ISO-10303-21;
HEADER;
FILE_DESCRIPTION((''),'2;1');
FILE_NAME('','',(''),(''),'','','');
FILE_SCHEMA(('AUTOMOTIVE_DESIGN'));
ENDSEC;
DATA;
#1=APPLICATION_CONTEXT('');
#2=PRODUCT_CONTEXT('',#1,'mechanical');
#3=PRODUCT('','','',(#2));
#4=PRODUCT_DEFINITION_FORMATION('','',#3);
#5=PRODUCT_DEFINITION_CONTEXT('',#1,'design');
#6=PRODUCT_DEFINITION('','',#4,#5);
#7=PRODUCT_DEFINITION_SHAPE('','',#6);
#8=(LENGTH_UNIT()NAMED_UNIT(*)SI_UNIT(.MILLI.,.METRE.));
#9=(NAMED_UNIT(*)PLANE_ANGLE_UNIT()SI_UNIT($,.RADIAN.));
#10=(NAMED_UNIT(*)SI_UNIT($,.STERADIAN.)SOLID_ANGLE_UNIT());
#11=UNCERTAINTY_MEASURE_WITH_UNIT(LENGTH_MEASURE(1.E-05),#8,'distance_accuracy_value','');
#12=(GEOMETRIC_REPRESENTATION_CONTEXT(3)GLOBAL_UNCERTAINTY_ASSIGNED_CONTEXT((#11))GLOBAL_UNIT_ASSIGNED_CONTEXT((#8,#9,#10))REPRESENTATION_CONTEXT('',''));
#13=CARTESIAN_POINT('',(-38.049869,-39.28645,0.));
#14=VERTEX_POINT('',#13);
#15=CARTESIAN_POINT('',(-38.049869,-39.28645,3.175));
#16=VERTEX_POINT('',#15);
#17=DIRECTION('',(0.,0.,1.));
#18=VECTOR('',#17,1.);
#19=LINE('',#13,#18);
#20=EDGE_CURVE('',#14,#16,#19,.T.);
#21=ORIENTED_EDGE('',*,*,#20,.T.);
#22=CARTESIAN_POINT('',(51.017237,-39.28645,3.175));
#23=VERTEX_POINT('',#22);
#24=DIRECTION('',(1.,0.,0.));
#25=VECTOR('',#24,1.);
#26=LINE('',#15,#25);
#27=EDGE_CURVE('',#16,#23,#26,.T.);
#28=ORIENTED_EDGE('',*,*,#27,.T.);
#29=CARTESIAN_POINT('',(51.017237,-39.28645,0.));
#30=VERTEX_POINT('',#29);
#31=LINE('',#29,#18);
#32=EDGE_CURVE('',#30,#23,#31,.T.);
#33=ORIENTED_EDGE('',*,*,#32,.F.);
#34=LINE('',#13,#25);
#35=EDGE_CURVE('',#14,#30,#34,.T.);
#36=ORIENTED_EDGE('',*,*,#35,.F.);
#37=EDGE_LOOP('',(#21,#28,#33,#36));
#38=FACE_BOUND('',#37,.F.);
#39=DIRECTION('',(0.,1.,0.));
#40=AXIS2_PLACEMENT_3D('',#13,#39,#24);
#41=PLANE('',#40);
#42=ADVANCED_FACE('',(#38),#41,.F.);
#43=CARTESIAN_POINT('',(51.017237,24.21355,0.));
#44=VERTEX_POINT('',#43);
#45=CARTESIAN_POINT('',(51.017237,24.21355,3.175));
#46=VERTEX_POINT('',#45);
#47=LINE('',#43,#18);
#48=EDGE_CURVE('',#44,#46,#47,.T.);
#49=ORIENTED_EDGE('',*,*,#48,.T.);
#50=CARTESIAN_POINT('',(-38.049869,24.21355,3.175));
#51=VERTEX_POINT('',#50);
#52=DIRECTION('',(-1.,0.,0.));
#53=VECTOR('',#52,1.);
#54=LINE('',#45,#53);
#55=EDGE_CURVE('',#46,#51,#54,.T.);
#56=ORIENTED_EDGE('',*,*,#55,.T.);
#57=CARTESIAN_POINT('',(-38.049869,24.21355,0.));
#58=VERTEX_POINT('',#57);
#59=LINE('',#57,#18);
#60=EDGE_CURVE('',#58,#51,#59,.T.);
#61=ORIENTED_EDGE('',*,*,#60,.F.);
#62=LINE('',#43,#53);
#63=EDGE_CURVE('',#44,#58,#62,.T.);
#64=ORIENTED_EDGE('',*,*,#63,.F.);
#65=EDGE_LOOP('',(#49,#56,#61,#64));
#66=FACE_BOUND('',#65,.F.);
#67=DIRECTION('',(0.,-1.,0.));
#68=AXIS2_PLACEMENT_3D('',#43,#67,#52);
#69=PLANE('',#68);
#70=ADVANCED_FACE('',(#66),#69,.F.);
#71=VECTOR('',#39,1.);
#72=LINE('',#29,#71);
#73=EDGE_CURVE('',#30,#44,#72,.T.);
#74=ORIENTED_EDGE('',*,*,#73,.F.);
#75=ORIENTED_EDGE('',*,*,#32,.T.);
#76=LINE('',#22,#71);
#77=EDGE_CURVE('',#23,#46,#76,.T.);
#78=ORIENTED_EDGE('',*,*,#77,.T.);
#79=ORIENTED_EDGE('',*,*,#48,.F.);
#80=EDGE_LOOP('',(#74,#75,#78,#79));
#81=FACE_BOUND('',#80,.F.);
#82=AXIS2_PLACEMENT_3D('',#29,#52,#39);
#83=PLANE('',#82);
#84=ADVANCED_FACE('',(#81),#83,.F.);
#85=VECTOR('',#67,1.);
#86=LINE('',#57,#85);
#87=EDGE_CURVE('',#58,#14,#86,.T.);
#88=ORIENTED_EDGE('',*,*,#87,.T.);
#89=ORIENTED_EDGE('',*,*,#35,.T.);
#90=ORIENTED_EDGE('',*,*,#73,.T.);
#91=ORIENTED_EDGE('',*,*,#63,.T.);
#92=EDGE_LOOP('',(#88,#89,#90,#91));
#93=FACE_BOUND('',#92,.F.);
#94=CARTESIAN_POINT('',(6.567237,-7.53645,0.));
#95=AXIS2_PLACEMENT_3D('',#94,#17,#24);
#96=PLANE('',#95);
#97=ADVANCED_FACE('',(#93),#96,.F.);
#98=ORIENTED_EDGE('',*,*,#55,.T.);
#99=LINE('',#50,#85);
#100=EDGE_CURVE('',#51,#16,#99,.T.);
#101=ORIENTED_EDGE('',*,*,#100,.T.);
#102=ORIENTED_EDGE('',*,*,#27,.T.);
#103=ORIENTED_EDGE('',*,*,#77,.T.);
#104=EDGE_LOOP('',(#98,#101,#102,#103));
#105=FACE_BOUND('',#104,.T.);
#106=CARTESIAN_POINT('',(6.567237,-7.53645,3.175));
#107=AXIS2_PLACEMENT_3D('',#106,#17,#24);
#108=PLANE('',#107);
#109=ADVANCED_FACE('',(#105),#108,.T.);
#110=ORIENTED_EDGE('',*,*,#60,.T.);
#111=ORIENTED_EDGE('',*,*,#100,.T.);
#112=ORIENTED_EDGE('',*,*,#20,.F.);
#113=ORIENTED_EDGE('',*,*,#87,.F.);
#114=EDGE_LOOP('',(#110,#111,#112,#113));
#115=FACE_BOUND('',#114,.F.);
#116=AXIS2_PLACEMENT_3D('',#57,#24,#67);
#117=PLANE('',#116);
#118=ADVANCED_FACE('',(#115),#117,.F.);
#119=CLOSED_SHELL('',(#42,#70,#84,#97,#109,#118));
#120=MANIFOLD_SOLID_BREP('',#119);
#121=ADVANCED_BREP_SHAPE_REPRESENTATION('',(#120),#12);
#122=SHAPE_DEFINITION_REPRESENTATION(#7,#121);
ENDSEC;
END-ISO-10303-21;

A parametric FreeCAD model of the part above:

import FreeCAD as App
import Part
import Sketcher
from FreeCAD import Vector
Q = App.Units.Quantity

doc = App.newDocument("Part")
body = doc.addObject("PartDesign::Body", "Body")

# Sketch on XY plane
sketch1 = body.newObject("Sketcher::SketchObject", "Sketch")
sketch1.AttachmentSupport = (doc.getObject("XY_Plane"), [""])
sketch1.MapMode = "FlatFace"
sketch1.addGeometry(Part.LineSegment(Vector(-38.049869, 24.21355, 0), Vector(-38.049869, -39.28645, 0)), False)
sketch1.addGeometry(Part.LineSegment(Vector(-38.049869, -39.28645, 0), Vector(51.017237, -39.28645, 0)), False)
sketch1.addGeometry(Part.LineSegment(Vector(51.017237, -39.28645, 0), Vector(51.017237, 24.21355, 0)), False)
sketch1.addGeometry(Part.LineSegment(Vector(51.017237, 24.21355, 0), Vector(-38.049869, 24.21355, 0)), False)
sketch1.addConstraint(Sketcher.Constraint("Coincident", 0, 2, 1, 1))
sketch1.addConstraint(Sketcher.Constraint("Coincident", 1, 2, 2, 1))
sketch1.addConstraint(Sketcher.Constraint("Coincident", 2, 2, 3, 1))
sketch1.addConstraint(Sketcher.Constraint("Coincident", 3, 2, 0, 1))
sketch1.addConstraint(Sketcher.Constraint("Vertical", 0))
sketch1.addConstraint(Sketcher.Constraint("Horizontal", 1))
sketch1.addConstraint(Sketcher.Constraint("Vertical", 2))
sketch1.addConstraint(Sketcher.Constraint("Horizontal", 3))
sketch1.addConstraint(Sketcher.Constraint("DistanceY", 0, 2, 0, 1, Q("2.5 in")))
sketch1.addConstraint(Sketcher.Constraint("DistanceX", 1, 1, 1, 2, Q("89.067106 mm")))
sketch1.addConstraint(Sketcher.Constraint("DistanceX", 0, 2, -1, 1, Q("38.049869 mm")))
sketch1.addConstraint(Sketcher.Constraint("DistanceY", 0, 2, -1, 1, Q("39.28645 mm")))
pad1 = body.newObject("PartDesign::Pad", "Pad")
pad1.Profile = sketch1
pad1.Length = Q("0.125 in")

doc.recompute()
